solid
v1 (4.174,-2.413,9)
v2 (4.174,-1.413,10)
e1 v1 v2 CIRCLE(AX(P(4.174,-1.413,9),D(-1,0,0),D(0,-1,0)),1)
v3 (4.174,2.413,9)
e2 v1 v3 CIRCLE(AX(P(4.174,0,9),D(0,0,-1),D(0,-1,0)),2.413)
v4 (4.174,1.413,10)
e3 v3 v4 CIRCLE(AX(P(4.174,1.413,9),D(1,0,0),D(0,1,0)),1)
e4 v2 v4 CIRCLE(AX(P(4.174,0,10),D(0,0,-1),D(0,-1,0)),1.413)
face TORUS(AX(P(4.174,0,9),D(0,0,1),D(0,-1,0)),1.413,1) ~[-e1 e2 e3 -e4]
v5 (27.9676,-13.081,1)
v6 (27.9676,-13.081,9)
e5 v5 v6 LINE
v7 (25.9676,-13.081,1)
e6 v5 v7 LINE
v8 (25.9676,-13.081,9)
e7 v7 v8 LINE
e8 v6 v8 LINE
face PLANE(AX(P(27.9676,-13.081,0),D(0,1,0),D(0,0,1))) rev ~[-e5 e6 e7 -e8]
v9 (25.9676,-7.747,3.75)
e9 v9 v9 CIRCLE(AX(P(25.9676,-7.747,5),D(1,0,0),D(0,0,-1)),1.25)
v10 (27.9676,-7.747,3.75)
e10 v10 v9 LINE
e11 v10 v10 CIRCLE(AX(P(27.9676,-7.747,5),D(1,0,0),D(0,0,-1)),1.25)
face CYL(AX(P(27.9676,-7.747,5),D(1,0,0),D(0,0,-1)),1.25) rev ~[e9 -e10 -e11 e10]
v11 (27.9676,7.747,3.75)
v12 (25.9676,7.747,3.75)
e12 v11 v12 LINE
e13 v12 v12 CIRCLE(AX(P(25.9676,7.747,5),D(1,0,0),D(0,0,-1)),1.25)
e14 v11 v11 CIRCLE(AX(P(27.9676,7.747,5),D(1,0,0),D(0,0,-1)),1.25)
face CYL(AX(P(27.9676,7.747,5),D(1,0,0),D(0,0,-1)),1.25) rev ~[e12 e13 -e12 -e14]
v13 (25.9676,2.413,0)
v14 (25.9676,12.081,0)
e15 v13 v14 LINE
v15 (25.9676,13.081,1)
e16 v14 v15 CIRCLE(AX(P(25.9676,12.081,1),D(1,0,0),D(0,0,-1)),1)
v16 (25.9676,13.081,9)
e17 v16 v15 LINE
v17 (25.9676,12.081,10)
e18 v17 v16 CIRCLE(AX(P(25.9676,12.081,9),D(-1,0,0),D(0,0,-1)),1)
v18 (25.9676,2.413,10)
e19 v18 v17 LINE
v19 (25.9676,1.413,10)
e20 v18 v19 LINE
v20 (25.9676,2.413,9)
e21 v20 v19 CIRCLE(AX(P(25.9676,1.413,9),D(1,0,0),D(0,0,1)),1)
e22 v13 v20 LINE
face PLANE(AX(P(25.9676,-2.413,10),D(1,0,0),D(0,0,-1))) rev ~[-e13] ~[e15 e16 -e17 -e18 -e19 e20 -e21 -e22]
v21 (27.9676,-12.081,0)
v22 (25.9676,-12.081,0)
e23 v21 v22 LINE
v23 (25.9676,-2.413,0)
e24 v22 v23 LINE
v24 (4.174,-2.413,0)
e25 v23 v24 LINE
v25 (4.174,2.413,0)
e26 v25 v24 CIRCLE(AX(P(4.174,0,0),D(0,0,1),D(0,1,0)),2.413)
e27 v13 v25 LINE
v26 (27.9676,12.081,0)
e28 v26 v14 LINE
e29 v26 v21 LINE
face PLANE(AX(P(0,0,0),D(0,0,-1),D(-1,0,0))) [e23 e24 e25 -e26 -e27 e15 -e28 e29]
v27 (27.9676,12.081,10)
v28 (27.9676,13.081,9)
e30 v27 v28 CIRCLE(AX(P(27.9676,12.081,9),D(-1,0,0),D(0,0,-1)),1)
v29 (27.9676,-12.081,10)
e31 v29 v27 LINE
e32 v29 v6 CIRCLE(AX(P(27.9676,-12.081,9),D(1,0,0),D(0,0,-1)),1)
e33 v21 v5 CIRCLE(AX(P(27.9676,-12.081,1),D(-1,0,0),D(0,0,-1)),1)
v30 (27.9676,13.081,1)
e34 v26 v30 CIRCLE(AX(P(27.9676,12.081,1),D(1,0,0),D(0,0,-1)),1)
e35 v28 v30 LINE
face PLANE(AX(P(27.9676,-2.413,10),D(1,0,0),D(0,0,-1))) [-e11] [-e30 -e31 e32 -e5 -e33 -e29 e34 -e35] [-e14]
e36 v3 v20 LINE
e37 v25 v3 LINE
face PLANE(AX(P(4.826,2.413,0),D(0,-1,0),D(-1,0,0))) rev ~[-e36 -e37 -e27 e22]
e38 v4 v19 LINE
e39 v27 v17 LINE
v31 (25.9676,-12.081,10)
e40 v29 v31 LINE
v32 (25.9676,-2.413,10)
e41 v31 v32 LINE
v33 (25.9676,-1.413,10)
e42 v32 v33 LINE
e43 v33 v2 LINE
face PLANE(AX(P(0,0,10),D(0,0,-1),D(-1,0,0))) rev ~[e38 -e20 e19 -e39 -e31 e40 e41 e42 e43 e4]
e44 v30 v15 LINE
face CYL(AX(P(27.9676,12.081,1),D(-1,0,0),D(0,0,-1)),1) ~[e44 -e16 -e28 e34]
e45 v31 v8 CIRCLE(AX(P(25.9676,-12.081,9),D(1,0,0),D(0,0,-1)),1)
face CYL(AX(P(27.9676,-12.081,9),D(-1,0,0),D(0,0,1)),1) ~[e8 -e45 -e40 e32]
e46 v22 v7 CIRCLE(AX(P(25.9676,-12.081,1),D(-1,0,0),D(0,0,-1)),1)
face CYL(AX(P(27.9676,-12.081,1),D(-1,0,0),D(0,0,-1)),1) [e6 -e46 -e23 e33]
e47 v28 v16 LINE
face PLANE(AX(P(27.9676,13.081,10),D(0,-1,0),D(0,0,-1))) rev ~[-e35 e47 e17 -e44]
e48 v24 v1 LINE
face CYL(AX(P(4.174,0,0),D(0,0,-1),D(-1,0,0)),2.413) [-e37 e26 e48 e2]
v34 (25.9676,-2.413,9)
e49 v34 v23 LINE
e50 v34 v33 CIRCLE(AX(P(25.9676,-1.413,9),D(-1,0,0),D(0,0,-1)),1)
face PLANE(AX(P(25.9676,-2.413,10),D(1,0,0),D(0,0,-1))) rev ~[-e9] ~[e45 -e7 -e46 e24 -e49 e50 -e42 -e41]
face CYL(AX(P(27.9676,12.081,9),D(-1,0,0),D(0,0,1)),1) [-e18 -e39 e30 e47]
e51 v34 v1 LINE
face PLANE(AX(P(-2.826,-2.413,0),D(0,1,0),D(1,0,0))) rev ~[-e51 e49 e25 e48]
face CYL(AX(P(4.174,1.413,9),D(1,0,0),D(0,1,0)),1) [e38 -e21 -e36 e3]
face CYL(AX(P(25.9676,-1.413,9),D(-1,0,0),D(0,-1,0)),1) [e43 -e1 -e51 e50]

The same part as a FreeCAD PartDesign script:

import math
import FreeCAD as App
import Part
import Sketcher

V = App.Vector


def edges_at(feature, points):
    """Names of the edges that pass closest to the given points."""
    edges = feature.Shape.Edges
    near = lambda p: min(range(len(edges)), key=lambda i: edges[i].distToShape(Part.Vertex(*p))[0])
    return sorted({f"Edge{near(p) + 1}" for p in points})

doc = App.newDocument("Part")
body = doc.addObject("PartDesign::Body", "Body")

# Sketch on XY plane
sketch1 = body.newObject("Sketcher::SketchObject", "Sketch")
sketch1.AttachmentSupport = (doc.getObject("XY_Plane"), [""])
sketch1.MapMode = "FlatFace"
sketch1.addGeometry([
    Part.ArcOfCircle(Part.Circle(V(-2.826, 0.413, 0), V(0, 0, 1), 2), math.radians(90), math.radians(180)),  # 0
    Part.LineSegment(V(-4.826, 0.413, 0), V(-4.826, -0.413, 0)),  # 1
    Part.ArcOfCircle(Part.Circle(V(-2.826, -0.413, 0), V(0, 0, 1), 2), math.radians(180), math.radians(270)),  # 2
    Part.LineSegment(V(-2.826, -2.413, 0), V(4.826, -2.413, 0)),  # 3
    Part.LineSegment(V(4.826, -2.413, 0), V(4.826, 2.413, 0)),  # 4
    Part.LineSegment(V(4.826, 2.413, 0), V(-2.826, 2.413, 0)),  # 5
], False)
sketch1.addConstraint([
    Sketcher.Constraint("Tangent", 0, 2, 1, 1),
    Sketcher.Constraint("Tangent", 1, 2, 2, 1),
    Sketcher.Constraint("Tangent", 2, 2, 3, 1),
    Sketcher.Constraint("Coincident", 3, 2, 4, 1),
    Sketcher.Constraint("Coincident", 4, 2, 5, 1),
    Sketcher.Constraint("Tangent", 5, 2, 0, 1),
    Sketcher.Constraint("Vertical", 1),
    Sketcher.Constraint("Horizontal", 3),
    Sketcher.Constraint("Vertical", 4),
    Sketcher.Constraint("Horizontal", 5),
    Sketcher.Constraint("Equal", 0, 2),
    Sketcher.Constraint("Radius", 0, 2.0),
    Sketcher.Constraint("DistanceX", 3, 1, 3, 2, 7.652),
    Sketcher.Constraint("DistanceY", 1, 2, 1, 1, 0.826),
    Sketcher.Constraint("DistanceX", 0, 3, -1, 1, 2.826),
    Sketcher.Constraint("DistanceY", -1, 1, 0, 3, 0.413),
])
pad1 = body.newObject("PartDesign::Pad", "Pad")
pad1.Profile = sketch1
pad1.Length = 10

# Sketch on YZ plane
sketch2 = body.newObject("Sketcher::SketchObject", "Sketch001")
sketch2.AttachmentSupport = (doc.getObject("YZ_Plane"), [""])
sketch2.MapMode = "FlatFace"
sketch2.AttachmentOffset = App.Placement(V(0, 0, 4.826), App.Rotation())
sketch2.addGeometry([
    Part.LineSegment(V(-2.413, 10, 0), V(-2.413, 0, 0)),
    Part.LineSegment(V(-2.413, 0, 0), V(2.413, 0, 0)),
    Part.LineSegment(V(2.413, 0, 0), V(2.413, 10, 0)),
    Part.LineSegment(V(2.413, 10, 0), V(-2.413, 10, 0)),
], False)
sketch2.addConstraint([
    Sketcher.Constraint("Coincident", 0, 2, 1, 1),
    Sketcher.Constraint("Coincident", 1, 2, 2, 1),
    Sketcher.Constraint("Coincident", 2, 2, 3, 1),
    Sketcher.Constraint("Coincident", 3, 2, 0, 1),
    Sketcher.Constraint("Vertical", 0),
    Sketcher.Constraint("Horizontal", 1),
    Sketcher.Constraint("Vertical", 2),
    Sketcher.Constraint("Horizontal", 3),
    Sketcher.Constraint("Symmetric", 0, 2, 1, 2, -1, 1),
    Sketcher.Constraint("DistanceY", 0, 2, 0, 1, 10.0),
    Sketcher.Constraint("DistanceX", 1, 1, 1, 2, 4.826),
])
pad2 = body.newObject("PartDesign::Pad", "Pad001")
pad2.Profile = sketch2
pad2.Length = 23.1416

# Sketch on YZ plane
sketch3 = body.newObject("Sketcher::SketchObject", "Sketch002")
sketch3.AttachmentSupport = (doc.getObject("YZ_Plane"), [""])
sketch3.MapMode = "FlatFace"
sketch3.AttachmentOffset = App.Placement(V(0, 0, 27.9676), App.Rotation())
sketch3.addGeometry([
    Part.LineSegment(V(-13.081, 10, 0), V(-13.081, 0, 0)),  # 0
    Part.LineSegment(V(-13.081, 0, 0), V(13.081, 0, 0)),  # 1
    Part.LineSegment(V(13.081, 0, 0), V(13.081, 10, 0)),  # 2
    Part.LineSegment(V(13.081, 10, 0), V(-13.081, 10, 0)),  # 3
    Part.Circle(V(-7.747, 5, 0), V(0, 0, 1), 1.25),  # 4
    Part.Circle(V(7.747, 5, 0), V(0, 0, 1), 1.25),  # 5
], False)
sketch3.addConstraint([
    Sketcher.Constraint("Coincident", 0, 2, 1, 1),
    Sketcher.Constraint("Coincident", 1, 2, 2, 1),
    Sketcher.Constraint("Coincident", 2, 2, 3, 1),
    Sketcher.Constraint("Coincident", 3, 2, 0, 1),
    Sketcher.Constraint("Vertical", 0),
    Sketcher.Constraint("Horizontal", 1),
    Sketcher.Constraint("Vertical", 2),
    Sketcher.Constraint("Horizontal", 3),
    Sketcher.Constraint("Equal", 4, 5),
    Sketcher.Constraint("Symmetric", 0, 2, 1, 2, -1, 1),
    Sketcher.Constraint("Symmetric", 4, 3, 5, 3, -2),
    Sketcher.Constraint("Diameter", 4, 2.5),
    Sketcher.Constraint("DistanceY", 0, 2, 0, 1, 10.0),
    Sketcher.Constraint("DistanceY", -1, 1, 4, 3, 5.0),
    Sketcher.Constraint("DistanceX", 1, 1, 1, 2, 26.162),
    Sketcher.Constraint("DistanceX", 4, 3, -1, 1, 7.747),
])
pad3 = body.newObject("PartDesign::Pad", "Pad002")
pad3.Profile = sketch3
pad3.Length = 2
pad3.Reversed = True

# Sketch on XY plane
sketch4 = body.newObject("Sketcher::SketchObject", "Sketch003")
sketch4.AttachmentSupport = (doc.getObject("XY_Plane"), [""])
sketch4.MapMode = "FlatFace"
sketch4.addGeometry([
    Part.LineSegment(V(4.174, -2.413, 0), V(-11.7475, -2.413, 0)),
    Part.LineSegment(V(-11.7475, -2.413, 0), V(-11.7475, 2.413, 0)),
    Part.LineSegment(V(-11.7475, 2.413, 0), V(4.174, 2.413, 0)),
    Part.LineSegment(V(4.174, 2.413, 0), V(4.174, -2.413, 0)),
], False)
sketch4.addConstraint([
    Sketcher.Constraint("Coincident", 0, 2, 1, 1),
    Sketcher.Constraint("Coincident", 1, 2, 2, 1),
    Sketcher.Constraint("Coincident", 2, 2, 3, 1),
    Sketcher.Constraint("Coincident", 3, 2, 0, 1),
    Sketcher.Constraint("Horizontal", 0),
    Sketcher.Constraint("Vertical", 1),
    Sketcher.Constraint("Horizontal", 2),
    Sketcher.Constraint("Vertical", 3),
    Sketcher.Constraint("DistanceY", 1, 1, 1, 2, 4.826),
    Sketcher.Constraint("DistanceX", 0, 2, 0, 1, 15.9215),
    Sketcher.Constraint("DistanceY", 0, 2, -1, 1, 2.413),
    Sketcher.Constraint("DistanceX", -1, 1, 2, 2, 4.174),
])
pocket1 = body.newObject("PartDesign::Pocket", "Pocket")
pocket1.Profile = sketch4
pocket1.Length = 10
pocket1.Reversed = True

# Sketch on XY plane
sketch5 = body.newObject("Sketcher::SketchObject", "Sketch004")
sketch5.AttachmentSupport = (doc.getObject("XY_Plane"), [""])
sketch5.MapMode = "FlatFace"
sketch5.addGeometry(Part.Circle(V(4.174, 0, 0), V(0, 0, 1), 2.413), False)
sketch5.addConstraint([
    Sketcher.Constraint("PointOnObject", 0, 3, -1),
    Sketcher.Constraint("Diameter", 0, 4.826),
    Sketcher.Constraint("DistanceX", -1, 1, 0, 3, 4.174),
])
pad4 = body.newObject("PartDesign::Pad", "Pad003")
pad4.Profile = sketch5
pad4.Length = 10
doc.recompute()

fillet = body.newObject("PartDesign::Fillet", "Fillet")
fillet.Base = (pad4, edges_at(pad4, [(1.761, 0, 10)]))
fillet.Radius = 1
doc.recompute()

fillet2 = body.newObject("PartDesign::Fillet", "Fillet001")
fillet2.Base = (fillet, edges_at(fillet, [
    (26.968, 13.081, 10),
    (26.968, 13.081, 0),
    (26.968, -13.081, 10),
    (26.968, -13.081, 0),
]))
fillet2.Radius = 1

doc.recompute()
